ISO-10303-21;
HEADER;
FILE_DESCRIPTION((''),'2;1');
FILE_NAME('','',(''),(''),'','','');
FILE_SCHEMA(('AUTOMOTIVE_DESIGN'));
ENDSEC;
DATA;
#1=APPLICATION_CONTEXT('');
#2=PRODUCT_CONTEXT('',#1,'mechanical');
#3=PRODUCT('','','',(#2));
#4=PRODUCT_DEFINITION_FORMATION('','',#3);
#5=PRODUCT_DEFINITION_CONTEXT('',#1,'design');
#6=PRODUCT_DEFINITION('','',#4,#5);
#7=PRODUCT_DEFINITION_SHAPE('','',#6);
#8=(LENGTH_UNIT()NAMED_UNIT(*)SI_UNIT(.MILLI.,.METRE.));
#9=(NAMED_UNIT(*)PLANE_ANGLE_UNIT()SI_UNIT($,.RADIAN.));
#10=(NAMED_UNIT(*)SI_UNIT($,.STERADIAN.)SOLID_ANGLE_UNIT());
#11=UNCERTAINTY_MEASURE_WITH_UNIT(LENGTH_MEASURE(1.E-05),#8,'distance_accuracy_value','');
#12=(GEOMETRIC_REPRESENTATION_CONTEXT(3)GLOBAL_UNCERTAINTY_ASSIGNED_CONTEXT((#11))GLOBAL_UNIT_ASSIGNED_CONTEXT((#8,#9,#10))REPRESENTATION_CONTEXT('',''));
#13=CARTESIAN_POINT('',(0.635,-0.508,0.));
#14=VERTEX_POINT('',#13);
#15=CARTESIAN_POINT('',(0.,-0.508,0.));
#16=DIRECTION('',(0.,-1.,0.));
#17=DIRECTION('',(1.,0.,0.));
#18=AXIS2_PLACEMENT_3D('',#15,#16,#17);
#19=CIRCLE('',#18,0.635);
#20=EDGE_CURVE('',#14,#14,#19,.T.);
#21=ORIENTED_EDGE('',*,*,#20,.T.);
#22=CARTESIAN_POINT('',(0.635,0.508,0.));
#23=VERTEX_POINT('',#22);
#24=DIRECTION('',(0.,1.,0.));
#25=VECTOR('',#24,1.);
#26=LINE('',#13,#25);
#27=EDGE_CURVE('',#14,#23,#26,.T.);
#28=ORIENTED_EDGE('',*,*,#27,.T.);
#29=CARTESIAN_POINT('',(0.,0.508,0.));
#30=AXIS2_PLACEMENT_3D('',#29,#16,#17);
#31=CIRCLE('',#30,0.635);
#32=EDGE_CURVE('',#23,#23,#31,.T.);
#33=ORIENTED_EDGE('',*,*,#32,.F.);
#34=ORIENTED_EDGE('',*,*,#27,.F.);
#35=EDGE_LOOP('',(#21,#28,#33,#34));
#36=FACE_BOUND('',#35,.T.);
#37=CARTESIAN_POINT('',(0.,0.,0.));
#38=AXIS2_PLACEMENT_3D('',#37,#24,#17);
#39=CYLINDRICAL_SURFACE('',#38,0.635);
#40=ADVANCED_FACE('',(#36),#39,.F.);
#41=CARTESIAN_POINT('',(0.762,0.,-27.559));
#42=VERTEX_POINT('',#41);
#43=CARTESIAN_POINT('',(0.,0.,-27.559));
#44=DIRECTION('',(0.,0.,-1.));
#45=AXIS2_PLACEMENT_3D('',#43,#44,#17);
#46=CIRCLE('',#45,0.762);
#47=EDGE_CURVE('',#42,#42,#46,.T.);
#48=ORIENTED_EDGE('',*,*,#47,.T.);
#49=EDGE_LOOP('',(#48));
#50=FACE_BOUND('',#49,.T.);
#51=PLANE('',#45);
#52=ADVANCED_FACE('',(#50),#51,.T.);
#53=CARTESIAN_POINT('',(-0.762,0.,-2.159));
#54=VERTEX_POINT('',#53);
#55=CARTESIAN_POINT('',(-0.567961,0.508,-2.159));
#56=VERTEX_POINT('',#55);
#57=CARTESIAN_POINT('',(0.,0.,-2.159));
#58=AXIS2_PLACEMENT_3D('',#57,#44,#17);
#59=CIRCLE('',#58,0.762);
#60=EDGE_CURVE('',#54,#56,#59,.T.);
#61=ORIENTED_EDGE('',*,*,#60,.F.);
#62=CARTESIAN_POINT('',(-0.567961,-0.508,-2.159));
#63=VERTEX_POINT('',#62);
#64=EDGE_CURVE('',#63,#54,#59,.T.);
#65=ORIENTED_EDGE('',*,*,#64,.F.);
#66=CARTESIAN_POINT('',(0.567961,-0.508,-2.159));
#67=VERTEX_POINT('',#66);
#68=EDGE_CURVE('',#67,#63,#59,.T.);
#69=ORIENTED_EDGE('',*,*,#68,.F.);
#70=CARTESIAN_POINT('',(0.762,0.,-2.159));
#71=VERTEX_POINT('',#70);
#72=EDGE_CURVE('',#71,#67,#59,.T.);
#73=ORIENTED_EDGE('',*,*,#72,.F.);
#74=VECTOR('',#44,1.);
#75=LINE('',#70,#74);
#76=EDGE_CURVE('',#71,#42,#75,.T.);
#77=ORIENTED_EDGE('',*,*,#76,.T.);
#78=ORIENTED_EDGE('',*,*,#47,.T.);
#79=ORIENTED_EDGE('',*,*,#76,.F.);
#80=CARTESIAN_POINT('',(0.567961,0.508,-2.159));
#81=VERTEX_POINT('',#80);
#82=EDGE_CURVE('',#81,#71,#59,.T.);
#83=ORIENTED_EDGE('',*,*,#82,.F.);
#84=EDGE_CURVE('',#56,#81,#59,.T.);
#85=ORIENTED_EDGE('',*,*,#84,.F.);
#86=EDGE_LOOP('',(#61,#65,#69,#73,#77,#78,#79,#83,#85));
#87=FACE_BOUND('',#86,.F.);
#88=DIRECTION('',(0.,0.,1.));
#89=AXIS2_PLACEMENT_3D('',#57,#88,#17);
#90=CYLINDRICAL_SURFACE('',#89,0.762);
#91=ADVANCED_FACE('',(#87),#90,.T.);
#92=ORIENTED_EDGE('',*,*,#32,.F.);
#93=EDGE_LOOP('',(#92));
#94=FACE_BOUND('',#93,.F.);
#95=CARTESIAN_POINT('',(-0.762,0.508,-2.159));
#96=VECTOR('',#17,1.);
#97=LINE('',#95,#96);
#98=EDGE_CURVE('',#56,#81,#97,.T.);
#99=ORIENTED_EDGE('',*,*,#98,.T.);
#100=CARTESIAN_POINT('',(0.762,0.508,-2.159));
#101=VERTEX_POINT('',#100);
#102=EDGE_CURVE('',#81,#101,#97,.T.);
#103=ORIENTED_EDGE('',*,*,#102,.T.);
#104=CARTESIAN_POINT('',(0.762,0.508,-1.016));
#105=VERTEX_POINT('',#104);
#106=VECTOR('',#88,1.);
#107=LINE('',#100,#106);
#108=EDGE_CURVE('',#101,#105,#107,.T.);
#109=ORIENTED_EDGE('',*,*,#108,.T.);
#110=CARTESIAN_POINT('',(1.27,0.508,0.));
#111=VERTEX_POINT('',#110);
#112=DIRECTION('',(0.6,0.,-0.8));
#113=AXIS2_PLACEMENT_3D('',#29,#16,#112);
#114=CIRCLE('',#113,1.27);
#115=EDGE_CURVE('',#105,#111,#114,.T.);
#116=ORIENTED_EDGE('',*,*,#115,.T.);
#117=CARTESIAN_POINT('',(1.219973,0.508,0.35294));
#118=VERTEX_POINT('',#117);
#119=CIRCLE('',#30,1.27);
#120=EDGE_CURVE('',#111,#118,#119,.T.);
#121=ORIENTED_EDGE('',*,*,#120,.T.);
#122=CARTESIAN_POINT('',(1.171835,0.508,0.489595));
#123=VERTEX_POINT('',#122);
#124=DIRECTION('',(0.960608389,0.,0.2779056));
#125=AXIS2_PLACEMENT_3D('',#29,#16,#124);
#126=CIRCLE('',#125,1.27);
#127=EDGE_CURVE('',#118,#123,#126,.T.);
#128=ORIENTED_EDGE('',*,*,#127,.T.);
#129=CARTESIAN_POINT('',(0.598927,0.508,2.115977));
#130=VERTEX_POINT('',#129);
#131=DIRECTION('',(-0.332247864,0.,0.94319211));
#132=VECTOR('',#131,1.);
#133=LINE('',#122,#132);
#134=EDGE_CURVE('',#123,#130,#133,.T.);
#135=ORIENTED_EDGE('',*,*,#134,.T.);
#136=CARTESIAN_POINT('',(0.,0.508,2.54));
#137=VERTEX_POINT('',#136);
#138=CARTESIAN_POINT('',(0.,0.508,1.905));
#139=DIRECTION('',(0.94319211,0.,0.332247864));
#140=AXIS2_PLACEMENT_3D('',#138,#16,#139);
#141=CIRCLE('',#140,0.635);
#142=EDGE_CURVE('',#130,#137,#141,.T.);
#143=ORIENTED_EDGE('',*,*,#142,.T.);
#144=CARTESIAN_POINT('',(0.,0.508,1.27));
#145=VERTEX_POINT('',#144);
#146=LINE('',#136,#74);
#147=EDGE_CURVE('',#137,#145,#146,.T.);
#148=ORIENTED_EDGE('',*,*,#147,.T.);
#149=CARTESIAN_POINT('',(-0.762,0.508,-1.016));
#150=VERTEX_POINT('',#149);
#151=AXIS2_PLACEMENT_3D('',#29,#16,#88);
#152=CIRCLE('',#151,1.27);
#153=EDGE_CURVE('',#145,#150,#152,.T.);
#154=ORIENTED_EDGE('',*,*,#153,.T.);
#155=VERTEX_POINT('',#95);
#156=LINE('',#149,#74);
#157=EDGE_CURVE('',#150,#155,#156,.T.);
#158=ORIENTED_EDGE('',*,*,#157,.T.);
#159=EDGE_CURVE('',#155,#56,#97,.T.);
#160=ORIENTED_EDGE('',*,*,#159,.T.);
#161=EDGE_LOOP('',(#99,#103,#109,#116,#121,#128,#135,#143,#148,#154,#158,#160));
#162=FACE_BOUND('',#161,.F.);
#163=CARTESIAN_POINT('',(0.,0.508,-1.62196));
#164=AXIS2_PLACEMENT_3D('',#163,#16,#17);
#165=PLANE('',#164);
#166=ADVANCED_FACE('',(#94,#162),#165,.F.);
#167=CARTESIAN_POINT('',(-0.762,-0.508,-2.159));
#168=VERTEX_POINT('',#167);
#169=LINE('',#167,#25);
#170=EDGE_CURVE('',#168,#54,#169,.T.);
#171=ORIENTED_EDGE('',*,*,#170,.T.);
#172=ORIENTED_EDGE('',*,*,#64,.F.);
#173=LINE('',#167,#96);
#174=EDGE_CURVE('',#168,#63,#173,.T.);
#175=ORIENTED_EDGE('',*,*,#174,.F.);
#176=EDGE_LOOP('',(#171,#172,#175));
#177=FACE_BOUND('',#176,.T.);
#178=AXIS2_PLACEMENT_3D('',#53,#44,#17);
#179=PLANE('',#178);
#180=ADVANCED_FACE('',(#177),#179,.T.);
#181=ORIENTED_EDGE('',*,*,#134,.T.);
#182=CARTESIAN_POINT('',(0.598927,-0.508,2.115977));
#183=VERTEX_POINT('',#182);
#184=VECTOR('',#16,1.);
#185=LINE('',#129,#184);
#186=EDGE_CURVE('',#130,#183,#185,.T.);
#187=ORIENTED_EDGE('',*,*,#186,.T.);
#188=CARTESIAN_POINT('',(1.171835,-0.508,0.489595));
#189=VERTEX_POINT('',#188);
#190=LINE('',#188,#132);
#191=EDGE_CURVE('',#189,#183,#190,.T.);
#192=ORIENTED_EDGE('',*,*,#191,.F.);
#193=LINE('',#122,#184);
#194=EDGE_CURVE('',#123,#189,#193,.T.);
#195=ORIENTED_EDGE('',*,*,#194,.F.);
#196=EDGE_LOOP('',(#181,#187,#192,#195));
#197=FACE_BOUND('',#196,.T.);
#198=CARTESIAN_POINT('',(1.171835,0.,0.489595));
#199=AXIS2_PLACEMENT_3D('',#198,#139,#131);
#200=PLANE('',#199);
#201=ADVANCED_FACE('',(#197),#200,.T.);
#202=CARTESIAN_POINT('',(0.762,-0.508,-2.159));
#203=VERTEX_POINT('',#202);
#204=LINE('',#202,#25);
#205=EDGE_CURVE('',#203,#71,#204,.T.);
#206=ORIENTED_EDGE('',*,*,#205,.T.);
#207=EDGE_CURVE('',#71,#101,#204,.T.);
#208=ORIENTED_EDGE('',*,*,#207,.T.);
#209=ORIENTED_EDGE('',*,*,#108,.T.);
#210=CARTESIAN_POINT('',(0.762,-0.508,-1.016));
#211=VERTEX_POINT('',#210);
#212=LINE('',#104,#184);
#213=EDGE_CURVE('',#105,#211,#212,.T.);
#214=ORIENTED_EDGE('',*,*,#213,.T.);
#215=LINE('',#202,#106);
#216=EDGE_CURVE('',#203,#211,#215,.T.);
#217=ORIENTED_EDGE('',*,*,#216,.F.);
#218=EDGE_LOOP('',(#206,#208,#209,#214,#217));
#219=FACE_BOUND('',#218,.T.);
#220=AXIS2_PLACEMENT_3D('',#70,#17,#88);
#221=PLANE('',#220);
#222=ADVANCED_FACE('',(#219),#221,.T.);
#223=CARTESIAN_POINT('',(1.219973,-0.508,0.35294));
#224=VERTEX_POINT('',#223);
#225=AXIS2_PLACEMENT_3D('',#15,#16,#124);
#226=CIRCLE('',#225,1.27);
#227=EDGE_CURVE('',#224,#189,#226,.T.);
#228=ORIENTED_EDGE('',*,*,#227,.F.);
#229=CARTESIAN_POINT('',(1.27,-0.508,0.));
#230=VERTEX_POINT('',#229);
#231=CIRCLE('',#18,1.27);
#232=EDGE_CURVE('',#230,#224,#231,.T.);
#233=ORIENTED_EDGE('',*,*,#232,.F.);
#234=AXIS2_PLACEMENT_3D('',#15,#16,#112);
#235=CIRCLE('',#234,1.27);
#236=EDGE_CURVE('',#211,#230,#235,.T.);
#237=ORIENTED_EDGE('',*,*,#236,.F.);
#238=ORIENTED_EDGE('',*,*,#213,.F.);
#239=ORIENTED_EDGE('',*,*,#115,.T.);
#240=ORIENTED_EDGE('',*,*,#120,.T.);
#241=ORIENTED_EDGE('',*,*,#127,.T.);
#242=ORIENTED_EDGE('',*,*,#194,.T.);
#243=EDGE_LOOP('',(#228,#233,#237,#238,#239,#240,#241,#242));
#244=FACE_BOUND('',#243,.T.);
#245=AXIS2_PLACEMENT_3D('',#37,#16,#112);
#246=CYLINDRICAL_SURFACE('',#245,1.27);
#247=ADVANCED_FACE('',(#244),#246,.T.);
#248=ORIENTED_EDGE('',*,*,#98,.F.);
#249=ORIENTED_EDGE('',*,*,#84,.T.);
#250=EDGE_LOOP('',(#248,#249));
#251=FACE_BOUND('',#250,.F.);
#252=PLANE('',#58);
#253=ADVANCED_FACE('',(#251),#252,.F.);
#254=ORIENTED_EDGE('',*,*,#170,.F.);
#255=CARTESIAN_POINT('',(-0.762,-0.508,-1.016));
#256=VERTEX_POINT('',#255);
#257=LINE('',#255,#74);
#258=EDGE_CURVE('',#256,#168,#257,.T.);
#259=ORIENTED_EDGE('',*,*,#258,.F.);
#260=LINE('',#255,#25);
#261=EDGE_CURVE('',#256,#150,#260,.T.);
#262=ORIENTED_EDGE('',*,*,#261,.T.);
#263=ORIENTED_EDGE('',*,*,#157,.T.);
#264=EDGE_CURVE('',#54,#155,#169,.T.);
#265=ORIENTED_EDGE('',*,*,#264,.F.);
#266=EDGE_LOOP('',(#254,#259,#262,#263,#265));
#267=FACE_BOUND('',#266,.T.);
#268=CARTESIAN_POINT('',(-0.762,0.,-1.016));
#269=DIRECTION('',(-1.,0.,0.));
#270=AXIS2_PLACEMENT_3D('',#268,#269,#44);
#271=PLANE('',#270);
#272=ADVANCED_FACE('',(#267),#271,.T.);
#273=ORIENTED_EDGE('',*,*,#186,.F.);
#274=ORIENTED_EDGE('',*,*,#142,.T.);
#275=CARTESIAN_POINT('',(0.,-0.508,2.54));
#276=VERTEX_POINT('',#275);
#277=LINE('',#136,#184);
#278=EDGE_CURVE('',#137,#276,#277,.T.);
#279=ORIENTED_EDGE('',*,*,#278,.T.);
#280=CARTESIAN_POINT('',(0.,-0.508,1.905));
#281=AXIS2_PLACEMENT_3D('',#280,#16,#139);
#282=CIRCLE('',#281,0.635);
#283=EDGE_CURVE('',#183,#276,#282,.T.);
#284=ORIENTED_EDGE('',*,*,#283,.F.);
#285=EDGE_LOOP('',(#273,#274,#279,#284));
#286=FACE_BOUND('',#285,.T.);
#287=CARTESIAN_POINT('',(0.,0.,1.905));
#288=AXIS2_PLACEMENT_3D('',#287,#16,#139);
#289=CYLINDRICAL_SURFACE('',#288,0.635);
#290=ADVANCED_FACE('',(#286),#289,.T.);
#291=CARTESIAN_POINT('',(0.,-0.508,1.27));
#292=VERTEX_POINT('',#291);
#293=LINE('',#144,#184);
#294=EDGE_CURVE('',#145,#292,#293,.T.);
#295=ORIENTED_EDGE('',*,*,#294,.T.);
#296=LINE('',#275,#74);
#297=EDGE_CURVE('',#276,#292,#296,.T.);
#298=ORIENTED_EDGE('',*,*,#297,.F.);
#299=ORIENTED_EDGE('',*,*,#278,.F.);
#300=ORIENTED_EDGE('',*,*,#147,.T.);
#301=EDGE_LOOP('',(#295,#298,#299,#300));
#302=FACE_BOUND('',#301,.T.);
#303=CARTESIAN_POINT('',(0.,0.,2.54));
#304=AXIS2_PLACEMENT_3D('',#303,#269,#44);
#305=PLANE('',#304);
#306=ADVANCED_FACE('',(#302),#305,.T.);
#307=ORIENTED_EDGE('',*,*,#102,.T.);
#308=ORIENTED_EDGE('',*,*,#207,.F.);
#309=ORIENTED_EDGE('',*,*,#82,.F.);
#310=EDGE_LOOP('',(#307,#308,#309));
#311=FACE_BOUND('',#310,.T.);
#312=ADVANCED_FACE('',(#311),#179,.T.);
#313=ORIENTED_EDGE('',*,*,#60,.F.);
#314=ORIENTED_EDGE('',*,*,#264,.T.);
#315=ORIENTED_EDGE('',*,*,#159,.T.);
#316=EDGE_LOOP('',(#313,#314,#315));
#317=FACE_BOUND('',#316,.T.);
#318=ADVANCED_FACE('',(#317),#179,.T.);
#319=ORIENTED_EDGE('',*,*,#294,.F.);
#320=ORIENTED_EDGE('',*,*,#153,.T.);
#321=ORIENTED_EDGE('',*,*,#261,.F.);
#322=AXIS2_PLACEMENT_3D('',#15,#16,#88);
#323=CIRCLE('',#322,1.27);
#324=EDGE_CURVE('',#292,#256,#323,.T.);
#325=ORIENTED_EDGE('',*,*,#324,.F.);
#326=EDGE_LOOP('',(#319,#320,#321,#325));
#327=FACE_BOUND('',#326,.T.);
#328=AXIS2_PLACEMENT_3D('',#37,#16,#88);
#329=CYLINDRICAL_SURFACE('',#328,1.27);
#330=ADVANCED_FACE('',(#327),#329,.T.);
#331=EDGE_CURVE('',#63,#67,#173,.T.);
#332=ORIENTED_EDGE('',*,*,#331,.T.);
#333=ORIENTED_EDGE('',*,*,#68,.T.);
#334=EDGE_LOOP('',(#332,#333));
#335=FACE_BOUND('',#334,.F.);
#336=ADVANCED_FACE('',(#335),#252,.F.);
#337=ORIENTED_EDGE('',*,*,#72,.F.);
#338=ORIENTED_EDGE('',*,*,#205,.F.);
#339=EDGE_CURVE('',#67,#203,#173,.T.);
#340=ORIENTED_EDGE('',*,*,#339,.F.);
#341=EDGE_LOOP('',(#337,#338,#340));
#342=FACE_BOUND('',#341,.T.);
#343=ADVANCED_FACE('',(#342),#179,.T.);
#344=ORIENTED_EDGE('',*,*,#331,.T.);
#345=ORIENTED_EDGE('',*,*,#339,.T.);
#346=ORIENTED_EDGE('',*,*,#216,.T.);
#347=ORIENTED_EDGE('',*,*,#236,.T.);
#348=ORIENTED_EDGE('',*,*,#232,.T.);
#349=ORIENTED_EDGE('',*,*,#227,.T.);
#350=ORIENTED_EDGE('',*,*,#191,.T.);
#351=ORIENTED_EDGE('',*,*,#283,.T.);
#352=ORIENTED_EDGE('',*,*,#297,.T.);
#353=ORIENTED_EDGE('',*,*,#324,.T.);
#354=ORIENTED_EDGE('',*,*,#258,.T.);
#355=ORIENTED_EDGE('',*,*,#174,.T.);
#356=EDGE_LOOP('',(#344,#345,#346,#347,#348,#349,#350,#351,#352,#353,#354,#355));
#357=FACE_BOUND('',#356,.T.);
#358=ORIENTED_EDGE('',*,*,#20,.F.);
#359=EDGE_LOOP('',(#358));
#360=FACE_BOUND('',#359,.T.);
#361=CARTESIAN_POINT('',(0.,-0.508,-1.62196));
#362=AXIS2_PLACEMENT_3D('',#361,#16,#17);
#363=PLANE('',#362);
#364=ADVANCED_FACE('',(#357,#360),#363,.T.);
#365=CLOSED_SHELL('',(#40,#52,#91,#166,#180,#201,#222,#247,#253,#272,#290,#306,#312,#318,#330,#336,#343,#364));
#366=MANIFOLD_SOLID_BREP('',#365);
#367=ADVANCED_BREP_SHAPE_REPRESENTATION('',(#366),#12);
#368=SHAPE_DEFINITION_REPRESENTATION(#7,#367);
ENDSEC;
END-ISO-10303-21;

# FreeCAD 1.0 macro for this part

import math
import FreeCAD as App
import Part
import Sketcher
from FreeCAD import Vector
Q = App.Units.Quantity

doc = App.newDocument("Part")
params = doc.addObject("Spreadsheet::Sheet", "Params")
for row, (alias, value) in enumerate([
    ("sketch1_diameter", "0.05 in"),
    ("sketch1_radius", "0.05 in"),
    ("sketch1_height", "0.05 in"),
    ("pad1_length", "0.04 in"),
    ("sketch2_radius", "0.05 in"),
    ("sketch2_width", "0.06 in"),
    ("sketch2_height", "0.045 in"),
    ("pad2_length", "0.04 in"),
    ("sketch3_diameter", "0.06 in"),
    ("pad3_length", "1 in"),
], start=1):
    params.set(f"A{row}", alias)
    params.set(f"B{row}", "=" + value)
    params.setAlias(f"B{row}", alias)

body = doc.addObject("PartDesign::Body", "Body")

# Sketch on XZ plane
sketch1 = body.newObject("Sketcher::SketchObject", "Sketch")
sketch1.AttachmentSupport = (doc.getObject("XZ_Plane"), [""])
sketch1.MapMode = "FlatFace"
sketch1.addGeometry([
    Part.ArcOfCircle(Part.Circle(Vector(0, 0, 0), Vector(0, 0, 1), 1.27), math.radians(16.14), math.radians(22.68)),  # 0
    Part.LineSegment(Vector(1.17, 0.49, 0), Vector(0.6, 2.12, 0)),  # 1
    Part.ArcOfCircle(Part.Circle(Vector(0, 1.91, 0), Vector(0, 0, 1), 0.64), math.radians(19), math.radians(90)),  # 2
    Part.LineSegment(Vector(0, 2.54, 0), Vector(0, 1.27, 0)),  # 3
    Part.ArcOfCircle(Part.Circle(Vector(0, 0, 0), Vector(0, 0, 1), 1.27), math.radians(90), math.radians(233)),  # 4
    Part.ArcOfCircle(Part.Circle(Vector(0, 0, 0), Vector(0, 0, 1), 1.27), math.radians(-127), math.radians(-53)),  # 5
    Part.ArcOfCircle(Part.Circle(Vector(0, 0, 0), Vector(0, 0, 1), 1.27), math.radians(-53), math.radians(0)),  # 6
    Part.ArcOfCircle(Part.Circle(Vector(0, 0, 0), Vector(0, 0, 1), 1.27), math.radians(0), math.radians(16.14)),  # 7
    Part.Circle(Vector(0, 0, 0), Vector(0, 0, 1), 0.64),  # 8
], False)
sketch1.addConstraint([
    Sketcher.Constraint("Coincident", 0, 2, 1, 1),
    Sketcher.Constraint("Tangent", 1, 2, 2, 1),
    Sketcher.Constraint("Coincident", 2, 2, 3, 1),
    Sketcher.Constraint("Coincident", 3, 2, 4, 1),
    Sketcher.Constraint("Tangent", 4, 2, 5, 1),
    Sketcher.Constraint("Tangent", 5, 2, 6, 1),
    Sketcher.Constraint("Tangent", 6, 2, 7, 1),
    Sketcher.Constraint("Tangent", 7, 2, 0, 1),
    Sketcher.Constraint("Vertical", 3),
    Sketcher.Constraint("Coincident", 0, 3, -1, 1),
    Sketcher.Constraint("Coincident", 4, 3, -1, 1),
    Sketcher.Constraint("Coincident", 6, 3, -1, 1),
    Sketcher.Constraint("Coincident", 8, 3, -1, 1),
    Sketcher.Constraint("Equal", 2, 8),
    Sketcher.Constraint("PointOnObject", 2, 3, -2),
    Sketcher.Constraint("PointOnObject", 2, 2, -2),
    Sketcher.Constraint("PointOnObject", 6, 2, -1),
    Sketcher.Constraint("Horizontal", 4, 2, 5, 2),
    Sketcher.Constraint("Diameter", 8, Q("0.05 in")),
    Sketcher.Constraint("Radius", 0, Q("0.05 in")),
    Sketcher.Constraint("DistanceY", 3, 2, 3, 1, Q("0.05 in")),
    Sketcher.Constraint("DistanceX", 4, 2, -1, 1, Q("0.03 in")),
    Sketcher.Constraint("DistanceY", -1, 1, 7, 2, Q("0.35294 mm")),
    Sketcher.Constraint("DistanceY", 0, 2, 1, 2, Q("1.626382 mm")),
])
sketch1.setExpression("Constraints[18]", "Params.sketch1_diameter")
sketch1.setExpression("Constraints[19]", "Params.sketch1_radius")
sketch1.setExpression("Constraints[20]", "Params.sketch1_height")
pad1 = body.newObject("PartDesign::Pad", "Pad")
pad1.Profile = sketch1
pad1.setExpression("Length", "Params.pad1_length")
pad1.Midplane = True

# Sketch on XZ plane
sketch2 = body.newObject("Sketcher::SketchObject", "Sketch001")
sketch2.AttachmentSupport = (doc.getObject("XZ_Plane"), [""])
sketch2.MapMode = "FlatFace"
sketch2.addGeometry([
    Part.LineSegment(Vector(0.8, -2.2, 0), Vector(0.8, -1, 0)),
    Part.ArcOfCircle(Part.Circle(Vector(0, 0, 0), Vector(0, 0, 1), 1.3), math.radians(-127), math.radians(-53)),
    Part.LineSegment(Vector(-0.8, -1, 0), Vector(-0.8, -2.2, 0)),
    Part.LineSegment(Vector(-0.8, -2.2, 0), Vector(0.8, -2.2, 0)),
], False)
sketch2.addConstraint([
    Sketcher.Constraint("Coincident", 0, 2, 1, 2),
    Sketcher.Constraint("Coincident", 1, 1, 2, 1),
    Sketcher.Constraint("Coincident", 2, 2, 3, 1),
    Sketcher.Constraint("Coincident", 3, 2, 0, 1),
    Sketcher.Constraint("Vertical", 0),
    Sketcher.Constraint("Vertical", 2),
    Sketcher.Constraint("Horizontal", 3),
    Sketcher.Constraint("Coincident", 1, 3, -1, 1),
    Sketcher.Constraint("Horizontal", 0, 2, 1, 1),
    Sketcher.Constraint("Radius", 1, Q("0.05 in")),
    Sketcher.Constraint("DistanceX", 3, 1, 3, 2, Q("0.06 in")),
    Sketcher.Constraint("DistanceY", 0, 1, 0, 2, Q("0.045 in")),
])
sketch2.setExpression("Constraints[9]", "Params.sketch2_radius")
sketch2.setExpression("Constraints[10]", "Params.sketch2_width")
sketch2.setExpression("Constraints[11]", "Params.sketch2_height")
pad2 = body.newObject("PartDesign::Pad", "Pad001")
pad2.Profile = sketch2
pad2.setExpression("Length", "Params.pad2_length")
pad2.Midplane = True

# Sketch on XY plane
sketch3 = body.newObject("Sketcher::SketchObject", "Sketch002")
sketch3.AttachmentSupport = (doc.getObject("XY_Plane"), [""])
sketch3.MapMode = "FlatFace"
sketch3.AttachmentOffset = App.Placement(Vector(0, 0, -0.085 * 25.4), App.Rotation())
sketch3.addGeometry(Part.Circle(Vector(0, 0, 0), Vector(0, 0, 1), 0.8), False)
sketch3.addConstraint([
    Sketcher.Constraint("Coincident", 0, 3, -1, 1),
    Sketcher.Constraint("Diameter", 0, Q("0.06 in")),
])
sketch3.setExpression("Constraints[1]", "Params.sketch3_diameter")
pad3 = body.newObject("PartDesign::Pad", "Pad002")
pad3.Profile = sketch3
pad3.setExpression("Length", "Params.pad3_length")
pad3.Reversed = True

doc.recompute()
